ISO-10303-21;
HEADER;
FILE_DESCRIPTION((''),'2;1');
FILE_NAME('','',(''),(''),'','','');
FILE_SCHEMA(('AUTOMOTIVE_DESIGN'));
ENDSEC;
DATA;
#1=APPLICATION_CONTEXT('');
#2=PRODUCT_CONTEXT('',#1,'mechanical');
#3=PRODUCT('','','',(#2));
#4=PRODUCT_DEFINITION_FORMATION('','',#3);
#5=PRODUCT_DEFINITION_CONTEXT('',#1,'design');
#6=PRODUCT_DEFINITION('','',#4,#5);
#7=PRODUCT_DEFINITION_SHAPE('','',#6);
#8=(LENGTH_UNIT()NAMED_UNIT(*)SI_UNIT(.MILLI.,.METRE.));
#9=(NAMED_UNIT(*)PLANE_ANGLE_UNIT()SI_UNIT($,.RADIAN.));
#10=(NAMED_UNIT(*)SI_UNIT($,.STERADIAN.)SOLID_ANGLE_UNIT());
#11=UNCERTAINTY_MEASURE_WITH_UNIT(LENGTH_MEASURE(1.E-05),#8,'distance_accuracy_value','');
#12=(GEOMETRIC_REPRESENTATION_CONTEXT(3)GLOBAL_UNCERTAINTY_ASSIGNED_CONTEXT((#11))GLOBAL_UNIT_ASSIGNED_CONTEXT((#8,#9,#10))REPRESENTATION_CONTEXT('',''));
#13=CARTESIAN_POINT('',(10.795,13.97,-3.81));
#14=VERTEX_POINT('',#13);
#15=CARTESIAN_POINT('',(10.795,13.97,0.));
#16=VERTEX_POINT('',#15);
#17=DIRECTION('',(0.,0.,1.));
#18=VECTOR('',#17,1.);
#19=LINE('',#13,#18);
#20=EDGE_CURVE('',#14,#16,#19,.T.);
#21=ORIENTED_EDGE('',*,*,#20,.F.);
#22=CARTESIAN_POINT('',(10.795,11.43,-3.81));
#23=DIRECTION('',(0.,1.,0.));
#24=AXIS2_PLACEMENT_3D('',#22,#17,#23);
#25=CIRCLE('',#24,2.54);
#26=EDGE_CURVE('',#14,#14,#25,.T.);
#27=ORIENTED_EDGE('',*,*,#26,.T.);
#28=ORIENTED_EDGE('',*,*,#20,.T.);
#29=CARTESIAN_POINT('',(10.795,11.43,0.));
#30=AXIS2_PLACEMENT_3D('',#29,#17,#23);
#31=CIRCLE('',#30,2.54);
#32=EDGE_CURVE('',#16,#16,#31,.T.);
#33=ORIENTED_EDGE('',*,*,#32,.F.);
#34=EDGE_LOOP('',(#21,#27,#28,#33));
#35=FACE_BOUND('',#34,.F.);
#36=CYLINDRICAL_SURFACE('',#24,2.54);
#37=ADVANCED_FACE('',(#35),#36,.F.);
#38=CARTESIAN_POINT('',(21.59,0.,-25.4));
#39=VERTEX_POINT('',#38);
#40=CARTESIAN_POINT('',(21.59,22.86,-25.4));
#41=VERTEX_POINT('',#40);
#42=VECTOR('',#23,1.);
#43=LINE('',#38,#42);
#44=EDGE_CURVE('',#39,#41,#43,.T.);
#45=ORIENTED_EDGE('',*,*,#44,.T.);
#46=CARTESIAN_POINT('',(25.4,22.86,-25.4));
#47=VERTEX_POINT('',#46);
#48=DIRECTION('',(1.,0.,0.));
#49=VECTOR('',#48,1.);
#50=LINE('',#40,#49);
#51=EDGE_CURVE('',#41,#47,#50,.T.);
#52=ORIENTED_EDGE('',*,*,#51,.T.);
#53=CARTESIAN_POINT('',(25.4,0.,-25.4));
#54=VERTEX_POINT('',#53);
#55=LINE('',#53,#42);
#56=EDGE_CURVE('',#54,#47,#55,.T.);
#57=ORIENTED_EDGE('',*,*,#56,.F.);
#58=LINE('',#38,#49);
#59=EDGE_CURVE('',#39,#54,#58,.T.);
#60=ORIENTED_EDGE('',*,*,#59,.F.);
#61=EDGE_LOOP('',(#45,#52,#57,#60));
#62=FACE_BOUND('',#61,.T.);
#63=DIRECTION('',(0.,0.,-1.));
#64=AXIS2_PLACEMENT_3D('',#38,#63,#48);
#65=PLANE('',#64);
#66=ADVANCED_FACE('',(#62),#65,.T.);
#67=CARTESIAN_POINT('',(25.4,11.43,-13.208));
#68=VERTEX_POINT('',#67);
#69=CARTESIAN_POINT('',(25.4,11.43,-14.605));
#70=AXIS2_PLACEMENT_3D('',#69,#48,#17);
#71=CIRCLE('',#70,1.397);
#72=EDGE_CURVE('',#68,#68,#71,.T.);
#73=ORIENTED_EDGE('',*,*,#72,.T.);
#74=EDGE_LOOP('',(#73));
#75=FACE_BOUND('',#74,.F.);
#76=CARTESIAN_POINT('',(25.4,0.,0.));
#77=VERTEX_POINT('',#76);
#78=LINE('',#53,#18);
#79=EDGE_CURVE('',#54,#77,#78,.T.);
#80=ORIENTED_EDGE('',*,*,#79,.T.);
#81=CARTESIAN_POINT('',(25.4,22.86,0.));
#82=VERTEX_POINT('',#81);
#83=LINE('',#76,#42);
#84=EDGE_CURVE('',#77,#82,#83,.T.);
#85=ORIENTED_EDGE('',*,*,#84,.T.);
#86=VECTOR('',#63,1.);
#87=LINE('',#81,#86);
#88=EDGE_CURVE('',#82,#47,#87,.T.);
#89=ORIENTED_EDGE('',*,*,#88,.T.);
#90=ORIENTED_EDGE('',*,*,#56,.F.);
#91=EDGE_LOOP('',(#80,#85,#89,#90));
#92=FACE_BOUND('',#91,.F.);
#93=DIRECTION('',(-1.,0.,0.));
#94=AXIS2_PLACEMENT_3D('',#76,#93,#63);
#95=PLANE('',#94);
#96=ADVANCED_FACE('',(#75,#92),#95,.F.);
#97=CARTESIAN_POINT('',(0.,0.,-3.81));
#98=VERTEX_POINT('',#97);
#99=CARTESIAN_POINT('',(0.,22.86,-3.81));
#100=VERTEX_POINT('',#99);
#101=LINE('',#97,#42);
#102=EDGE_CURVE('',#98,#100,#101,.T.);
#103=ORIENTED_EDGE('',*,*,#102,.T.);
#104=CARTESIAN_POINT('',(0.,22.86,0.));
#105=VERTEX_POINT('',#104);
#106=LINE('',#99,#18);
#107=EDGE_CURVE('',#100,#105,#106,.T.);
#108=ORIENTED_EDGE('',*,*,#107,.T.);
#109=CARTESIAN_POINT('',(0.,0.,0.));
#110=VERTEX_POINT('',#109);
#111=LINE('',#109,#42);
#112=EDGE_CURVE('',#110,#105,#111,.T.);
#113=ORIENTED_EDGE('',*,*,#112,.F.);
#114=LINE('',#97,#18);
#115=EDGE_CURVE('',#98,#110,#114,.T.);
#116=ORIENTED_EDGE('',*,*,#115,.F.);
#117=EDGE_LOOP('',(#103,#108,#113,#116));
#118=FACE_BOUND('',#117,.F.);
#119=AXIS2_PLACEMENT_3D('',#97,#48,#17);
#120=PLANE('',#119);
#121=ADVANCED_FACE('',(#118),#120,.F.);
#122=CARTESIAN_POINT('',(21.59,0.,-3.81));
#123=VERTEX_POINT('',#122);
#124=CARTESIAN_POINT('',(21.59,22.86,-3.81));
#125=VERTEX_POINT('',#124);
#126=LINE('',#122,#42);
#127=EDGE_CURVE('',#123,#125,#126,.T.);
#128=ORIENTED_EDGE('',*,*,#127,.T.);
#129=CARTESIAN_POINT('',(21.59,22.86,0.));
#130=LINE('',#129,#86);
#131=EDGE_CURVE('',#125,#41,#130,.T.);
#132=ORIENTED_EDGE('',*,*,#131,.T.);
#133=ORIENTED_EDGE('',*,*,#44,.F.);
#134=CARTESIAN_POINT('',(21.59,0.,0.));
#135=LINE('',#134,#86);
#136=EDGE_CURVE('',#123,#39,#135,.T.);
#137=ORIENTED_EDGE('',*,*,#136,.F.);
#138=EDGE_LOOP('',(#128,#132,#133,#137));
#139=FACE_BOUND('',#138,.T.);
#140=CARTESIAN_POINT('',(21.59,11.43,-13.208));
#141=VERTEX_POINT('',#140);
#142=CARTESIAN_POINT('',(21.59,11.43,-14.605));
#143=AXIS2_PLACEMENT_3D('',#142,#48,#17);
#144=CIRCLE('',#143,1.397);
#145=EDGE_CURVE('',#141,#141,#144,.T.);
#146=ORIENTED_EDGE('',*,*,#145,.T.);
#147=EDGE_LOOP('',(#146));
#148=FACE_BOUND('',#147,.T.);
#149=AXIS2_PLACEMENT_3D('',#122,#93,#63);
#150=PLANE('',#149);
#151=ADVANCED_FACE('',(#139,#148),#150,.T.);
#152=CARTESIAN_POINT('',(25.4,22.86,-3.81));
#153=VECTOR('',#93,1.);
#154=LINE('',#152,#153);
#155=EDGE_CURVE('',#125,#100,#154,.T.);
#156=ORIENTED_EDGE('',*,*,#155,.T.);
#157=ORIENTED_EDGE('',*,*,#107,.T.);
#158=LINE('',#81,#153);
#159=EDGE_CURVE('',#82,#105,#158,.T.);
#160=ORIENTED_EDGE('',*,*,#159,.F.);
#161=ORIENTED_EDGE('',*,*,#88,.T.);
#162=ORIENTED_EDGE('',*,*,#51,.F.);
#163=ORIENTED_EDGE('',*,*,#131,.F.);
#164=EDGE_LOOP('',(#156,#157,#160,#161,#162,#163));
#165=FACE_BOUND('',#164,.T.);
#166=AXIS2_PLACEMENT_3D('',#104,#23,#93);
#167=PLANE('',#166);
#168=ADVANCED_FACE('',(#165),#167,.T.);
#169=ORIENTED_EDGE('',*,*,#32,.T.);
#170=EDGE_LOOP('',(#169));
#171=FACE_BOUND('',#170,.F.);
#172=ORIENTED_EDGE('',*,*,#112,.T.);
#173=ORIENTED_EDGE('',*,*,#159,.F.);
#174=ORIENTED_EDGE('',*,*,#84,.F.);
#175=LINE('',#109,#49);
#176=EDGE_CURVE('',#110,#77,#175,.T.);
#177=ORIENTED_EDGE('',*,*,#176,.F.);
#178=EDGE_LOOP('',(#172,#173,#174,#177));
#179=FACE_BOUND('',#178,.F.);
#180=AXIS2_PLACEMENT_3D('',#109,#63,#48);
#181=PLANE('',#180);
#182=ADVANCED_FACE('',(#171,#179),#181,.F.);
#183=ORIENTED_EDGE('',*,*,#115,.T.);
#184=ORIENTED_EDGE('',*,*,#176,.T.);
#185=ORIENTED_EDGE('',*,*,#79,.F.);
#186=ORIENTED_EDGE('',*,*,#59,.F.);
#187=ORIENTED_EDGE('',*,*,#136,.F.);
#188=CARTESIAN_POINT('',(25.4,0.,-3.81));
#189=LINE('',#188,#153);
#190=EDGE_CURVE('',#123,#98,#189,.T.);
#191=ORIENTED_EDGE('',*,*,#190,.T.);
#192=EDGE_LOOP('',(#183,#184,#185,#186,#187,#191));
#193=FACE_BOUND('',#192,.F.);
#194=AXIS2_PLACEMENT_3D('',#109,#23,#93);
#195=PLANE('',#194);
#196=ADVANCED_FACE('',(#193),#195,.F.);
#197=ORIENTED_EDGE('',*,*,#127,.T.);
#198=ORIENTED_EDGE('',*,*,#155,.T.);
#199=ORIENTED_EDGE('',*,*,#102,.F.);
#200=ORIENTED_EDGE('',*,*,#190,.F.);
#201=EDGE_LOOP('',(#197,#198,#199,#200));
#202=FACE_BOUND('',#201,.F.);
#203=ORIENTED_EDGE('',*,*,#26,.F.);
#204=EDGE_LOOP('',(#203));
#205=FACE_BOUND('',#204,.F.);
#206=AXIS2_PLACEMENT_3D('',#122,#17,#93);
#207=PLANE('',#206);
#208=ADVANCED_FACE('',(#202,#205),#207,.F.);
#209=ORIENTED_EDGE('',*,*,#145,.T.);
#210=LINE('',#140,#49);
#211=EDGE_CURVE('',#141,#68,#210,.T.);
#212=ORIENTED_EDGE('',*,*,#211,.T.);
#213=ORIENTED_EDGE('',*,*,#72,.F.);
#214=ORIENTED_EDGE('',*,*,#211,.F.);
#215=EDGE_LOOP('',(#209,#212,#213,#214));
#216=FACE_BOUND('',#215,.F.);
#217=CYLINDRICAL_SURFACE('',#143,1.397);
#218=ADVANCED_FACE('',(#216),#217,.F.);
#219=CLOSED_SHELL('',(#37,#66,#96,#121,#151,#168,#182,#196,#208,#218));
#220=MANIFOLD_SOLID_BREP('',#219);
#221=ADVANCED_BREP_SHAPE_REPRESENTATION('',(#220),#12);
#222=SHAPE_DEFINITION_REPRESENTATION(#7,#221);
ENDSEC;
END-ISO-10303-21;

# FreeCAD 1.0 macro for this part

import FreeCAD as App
import Part
import Sketcher
from FreeCAD import Vector
Q = App.Units.Quantity


def add_polygon(sketch, points):
    """Adds a closed chain of lines whose ends are joined by coincident constraints."""
    first, n = sketch.GeometryCount, len(points)
    for a, b in zip(points, points[1:] + points[:1]):
        sketch.addGeometry(Part.LineSegment(App.Vector(*a, 0), App.Vector(*b, 0)), False)
    for i in range(n):
        sketch.addConstraint(Sketcher.Constraint("Coincident", first + i, 2, first + (i + 1) % n, 1))

doc = App.newDocument("Part")
params = doc.addObject("Spreadsheet::Sheet", "Params")
for row, (alias, value) in enumerate([
    ("sketch1_width", "1 in"),
    ("sketch1_width2", "0.15 in"),
    ("pad1_length", "0.9 in"),
    ("sketch2_diameter", "0.11 in"),
    ("hole_diameter", "0.11 in"),
    ("sketch3_diameter", "0.2 in"),
    ("hole2_diameter", "0.2 in"),
], start=1):
    params.set(f"A{row}", alias)
    params.set(f"B{row}", "=" + value)
    params.setAlias(f"B{row}", alias)

body = doc.addObject("PartDesign::Body", "Body")

# Sketch on XZ plane
sketch1 = body.newObject("Sketcher::SketchObject", "Sketch")
sketch1.AttachmentSupport = (doc.getObject("XZ_Plane"), [""])
sketch1.MapMode = "FlatFace"
add_polygon(sketch1, [(0, -3.8), (0, 0), (25.4, 0), (25.4, -25.4), (21.6, -25.4), (21.6, -3.8)])  # lines 0-5
sketch1.addConstraint([
    Sketcher.Constraint("Vertical", 0),
    Sketcher.Constraint("Horizontal", 1),
    Sketcher.Constraint("Vertical", 2),
    Sketcher.Constraint("Horizontal", 3),
    Sketcher.Constraint("Vertical", 4),
    Sketcher.Constraint("Horizontal", 5),
    Sketcher.Constraint("Coincident", 0, 2, -1, 1),
    Sketcher.Constraint("Equal", 3, 0),
    Sketcher.Constraint("Equal", 1, 2),
    Sketcher.Constraint("DistanceX", 1, 1, 1, 2, Q("1 in")),
    Sketcher.Constraint("DistanceX", 3, 2, 3, 1, Q("0.15 in")),
])
sketch1.setExpression("Constraints[15]", "Params.sketch1_width")
sketch1.setExpression("Constraints[16]", "Params.sketch1_width2")
pad1 = body.newObject("PartDesign::Pad", "Pad")
pad1.Profile = sketch1
pad1.setExpression("Length", "Params.pad1_length")
pad1.Reversed = True

# Sketch on YZ plane
sketch2 = body.newObject("Sketcher::SketchObject", "Sketch001")
sketch2.AttachmentSupport = (doc.getObject("YZ_Plane"), [""])
sketch2.MapMode = "FlatFace"
sketch2.AttachmentOffset = App.Placement(Vector(0, 0, 0.85 * 25.4), App.Rotation())
sketch2.addGeometry(Part.Circle(Vector(11.4, -14.6, 0), Vector(0, 0, 1), 1.4), False)
sketch2.addConstraint([
    Sketcher.Constraint("Diameter", 0, Q("0.11 in")),
    Sketcher.Constraint("DistanceX", -1, 1, 0, 3, Q("0.45 in")),
    Sketcher.Constraint("DistanceY", 0, 3, -1, 1, Q("0.575 in")),
])
sketch2.setExpression("Constraints[0]", "Params.sketch2_diameter")
doc.recompute()
hole = body.newObject("PartDesign::Hole", "Hole")
hole.Profile = sketch2
hole.ThreadType = "None"
hole.setExpression("Diameter", "Params.hole_diameter")
hole.DepthType = "ThroughAll"
hole.Reversed = True

# Sketch on XY plane
sketch3 = body.newObject("Sketcher::SketchObject", "Sketch002")
sketch3.AttachmentSupport = (doc.getObject("XY_Plane"), [""])
sketch3.MapMode = "FlatFace"
sketch3.AttachmentOffset = App.Placement(Vector(0, 0, -0.15 * 25.4), App.Rotation())
sketch3.addGeometry(Part.Circle(Vector(10.8, 11.4, 0), Vector(0, 0, 1), 2.5), False)
sketch3.addConstraint([
    Sketcher.Constraint("Diameter", 0, Q("0.2 in")),
    Sketcher.Constraint("DistanceY", -1, 1, 0, 3, Q("0.45 in")),
    Sketcher.Constraint("DistanceX", -1, 1, 0, 3, Q("0.425 in")),
])
sketch3.setExpression("Constraints[0]", "Params.sketch3_diameter")
doc.recompute()
hole2 = body.newObject("PartDesign::Hole", "Hole001")
hole2.Profile = sketch3
hole2.ThreadType = "None"
hole2.setExpression("Diameter", "Params.hole2_diameter")
hole2.DepthType = "ThroughAll"
hole2.Reversed = True

doc.recompute()
